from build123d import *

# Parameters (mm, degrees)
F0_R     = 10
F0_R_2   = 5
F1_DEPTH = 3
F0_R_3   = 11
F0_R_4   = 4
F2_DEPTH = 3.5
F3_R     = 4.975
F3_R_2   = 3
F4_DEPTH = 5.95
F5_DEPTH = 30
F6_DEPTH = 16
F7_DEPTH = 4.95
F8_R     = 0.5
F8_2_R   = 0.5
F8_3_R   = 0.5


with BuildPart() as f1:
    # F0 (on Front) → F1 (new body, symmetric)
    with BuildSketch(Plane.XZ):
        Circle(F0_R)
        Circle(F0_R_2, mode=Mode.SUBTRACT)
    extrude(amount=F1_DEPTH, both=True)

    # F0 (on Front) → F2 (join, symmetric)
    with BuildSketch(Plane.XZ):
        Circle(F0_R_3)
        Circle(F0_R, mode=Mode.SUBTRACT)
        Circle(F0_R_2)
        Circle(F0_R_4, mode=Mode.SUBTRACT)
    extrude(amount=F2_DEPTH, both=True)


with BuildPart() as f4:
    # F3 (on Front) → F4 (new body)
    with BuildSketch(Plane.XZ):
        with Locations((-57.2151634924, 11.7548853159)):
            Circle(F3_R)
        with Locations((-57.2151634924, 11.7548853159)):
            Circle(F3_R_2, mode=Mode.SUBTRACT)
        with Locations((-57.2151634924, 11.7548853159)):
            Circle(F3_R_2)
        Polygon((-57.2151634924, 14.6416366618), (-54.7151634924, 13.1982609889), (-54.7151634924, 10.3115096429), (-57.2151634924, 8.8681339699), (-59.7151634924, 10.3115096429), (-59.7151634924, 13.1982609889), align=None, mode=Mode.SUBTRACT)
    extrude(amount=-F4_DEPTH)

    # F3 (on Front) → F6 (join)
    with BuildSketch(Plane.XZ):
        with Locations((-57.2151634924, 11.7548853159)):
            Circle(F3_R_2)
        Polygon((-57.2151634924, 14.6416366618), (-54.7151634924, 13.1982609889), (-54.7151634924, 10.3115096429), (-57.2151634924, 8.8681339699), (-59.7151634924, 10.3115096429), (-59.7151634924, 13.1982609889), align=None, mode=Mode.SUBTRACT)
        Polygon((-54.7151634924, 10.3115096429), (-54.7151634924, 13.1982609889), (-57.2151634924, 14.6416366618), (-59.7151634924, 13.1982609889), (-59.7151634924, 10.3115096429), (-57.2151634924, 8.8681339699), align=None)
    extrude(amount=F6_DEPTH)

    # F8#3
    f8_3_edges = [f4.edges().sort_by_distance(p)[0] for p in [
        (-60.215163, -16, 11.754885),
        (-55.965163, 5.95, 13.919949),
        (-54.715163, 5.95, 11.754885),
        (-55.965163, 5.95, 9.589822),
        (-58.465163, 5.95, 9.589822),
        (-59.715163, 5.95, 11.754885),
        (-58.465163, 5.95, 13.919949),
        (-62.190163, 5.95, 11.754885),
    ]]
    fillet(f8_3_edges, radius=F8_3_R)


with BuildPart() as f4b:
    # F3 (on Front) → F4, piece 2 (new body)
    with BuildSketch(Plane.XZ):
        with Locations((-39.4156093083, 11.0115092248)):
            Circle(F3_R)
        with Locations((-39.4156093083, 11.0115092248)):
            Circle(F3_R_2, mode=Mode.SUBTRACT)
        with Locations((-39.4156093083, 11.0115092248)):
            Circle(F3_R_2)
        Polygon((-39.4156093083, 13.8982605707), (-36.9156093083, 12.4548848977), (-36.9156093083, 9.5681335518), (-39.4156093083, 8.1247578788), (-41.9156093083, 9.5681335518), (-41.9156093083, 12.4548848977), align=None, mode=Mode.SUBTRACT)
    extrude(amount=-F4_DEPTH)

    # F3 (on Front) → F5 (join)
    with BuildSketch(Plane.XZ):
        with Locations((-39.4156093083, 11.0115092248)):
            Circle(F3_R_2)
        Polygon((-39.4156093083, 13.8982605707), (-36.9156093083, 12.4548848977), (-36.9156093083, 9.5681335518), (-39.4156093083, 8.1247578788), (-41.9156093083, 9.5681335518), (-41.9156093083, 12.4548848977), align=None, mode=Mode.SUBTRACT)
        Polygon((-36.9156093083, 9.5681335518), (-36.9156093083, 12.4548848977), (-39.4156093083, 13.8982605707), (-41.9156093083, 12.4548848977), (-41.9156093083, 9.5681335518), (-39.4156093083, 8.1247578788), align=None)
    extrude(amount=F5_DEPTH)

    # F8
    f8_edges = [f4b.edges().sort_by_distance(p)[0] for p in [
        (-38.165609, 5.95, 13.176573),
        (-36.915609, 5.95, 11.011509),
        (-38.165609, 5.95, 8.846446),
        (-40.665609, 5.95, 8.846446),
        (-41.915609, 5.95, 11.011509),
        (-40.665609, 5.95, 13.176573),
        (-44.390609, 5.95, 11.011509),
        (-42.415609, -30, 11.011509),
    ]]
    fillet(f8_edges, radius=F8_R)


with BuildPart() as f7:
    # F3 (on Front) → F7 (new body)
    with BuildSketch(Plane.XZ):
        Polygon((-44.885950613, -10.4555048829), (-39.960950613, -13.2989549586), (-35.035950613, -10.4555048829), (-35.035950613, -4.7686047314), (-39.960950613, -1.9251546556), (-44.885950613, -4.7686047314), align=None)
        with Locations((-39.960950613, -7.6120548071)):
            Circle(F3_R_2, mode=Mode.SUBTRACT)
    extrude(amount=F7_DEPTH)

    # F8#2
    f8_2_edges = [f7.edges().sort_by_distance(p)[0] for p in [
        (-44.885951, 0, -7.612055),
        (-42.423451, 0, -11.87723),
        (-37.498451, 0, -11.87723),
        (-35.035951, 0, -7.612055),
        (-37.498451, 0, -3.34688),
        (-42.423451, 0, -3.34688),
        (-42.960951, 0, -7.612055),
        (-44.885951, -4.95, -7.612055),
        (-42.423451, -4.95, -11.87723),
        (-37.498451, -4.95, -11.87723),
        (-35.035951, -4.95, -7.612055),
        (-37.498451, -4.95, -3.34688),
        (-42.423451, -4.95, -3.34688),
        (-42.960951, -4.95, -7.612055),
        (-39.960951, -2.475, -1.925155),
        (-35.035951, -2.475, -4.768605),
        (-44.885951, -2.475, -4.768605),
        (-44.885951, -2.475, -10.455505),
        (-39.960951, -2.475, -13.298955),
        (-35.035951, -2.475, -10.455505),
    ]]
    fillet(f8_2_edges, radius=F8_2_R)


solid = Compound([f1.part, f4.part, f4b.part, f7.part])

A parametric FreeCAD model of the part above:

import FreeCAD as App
import Part
import Sketcher

V = App.Vector
Q = App.Units.Quantity


def edges_at(feature, points):
    """Names of the edges that pass closest to the given points."""
    edges = feature.Shape.Edges
    near = lambda p: min(range(len(edges)), key=lambda i: edges[i].distToShape(Part.Vertex(*p))[0])
    return sorted({f"Edge{near(p) + 1}" for p in points})


def add_polygon(sketch, points):
    """Adds a closed chain of lines whose ends are joined by coincident constraints."""
    first, n = sketch.GeometryCount, len(points)
    for a, b in zip(points, points[1:] + points[:1]):
        sketch.addGeometry(Part.LineSegment(App.Vector(*a, 0), App.Vector(*b, 0)), False)
    for i in range(n):
        sketch.addConstraint(Sketcher.Constraint("Coincident", first + i, 2, first + (i + 1) % n, 1))

doc = App.newDocument("Part")
body = doc.addObject("PartDesign::Body", "Body")

sketch1 = body.newObject("Sketcher::SketchObject", "Sketch")
sketch1.AttachmentSupport = (doc.getObject("XZ_Plane"), [""])
sketch1.MapMode = "FlatFace"
sketch1.addGeometry(Part.Circle(V(0, 0, 0), V(0, 0, 1), 10), False)
sketch1.addGeometry(Part.Circle(V(0, 0, 0), V(0, 0, 1), 5), False)
sketch1.addConstraint(Sketcher.Constraint("Coincident", 0, 3, -1, 1))
sketch1.addConstraint(Sketcher.Constraint("Coincident", 1, 3, -1, 1))
sketch1.addConstraint(Sketcher.Constraint("Diameter", 0, Q("20 mm")))
sketch1.addConstraint(Sketcher.Constraint("Diameter", 1, Q("10 mm")))
pad1 = body.newObject("PartDesign::Pad", "Pad")
pad1.Profile = sketch1
pad1.Length = 6
pad1.Midplane = True

sketch2 = body.newObject("Sketcher::SketchObject", "Sketch001")
sketch2.AttachmentSupport = (doc.getObject("XZ_Plane"), [""])
sketch2.MapMode = "FlatFace"
sketch2.addGeometry(Part.Circle(V(0, 0, 0), V(0, 0, 1), 11), False)
sketch2.addGeometry(Part.Circle(V(0, 0, 0), V(0, 0, 1), 10), False)
sketch2.addGeometry(Part.Circle(V(0, 0, 0), V(0, 0, 1), 5), False)
sketch2.addGeometry(Part.Circle(V(0, 0, 0), V(0, 0, 1), 4), False)
sketch2.addConstraint(Sketcher.Constraint("Coincident", 0, 3, -1, 1))
sketch2.addConstraint(Sketcher.Constraint("Coincident", 1, 3, -1, 1))
sketch2.addConstraint(Sketcher.Constraint("Coincident", 2, 3, -1, 1))
sketch2.addConstraint(Sketcher.Constraint("Coincident", 3, 3, -1, 1))
sketch2.addConstraint(Sketcher.Constraint("Diameter", 0, Q("22 mm")))
sketch2.addConstraint(Sketcher.Constraint("Diameter", 1, Q("20 mm")))
sketch2.addConstraint(Sketcher.Constraint("Diameter", 2, Q("10 mm")))
sketch2.addConstraint(Sketcher.Constraint("Diameter", 3, Q("8 mm")))
pad2 = body.newObject("PartDesign::Pad", "Pad001")
pad2.Profile = sketch2
pad2.Length = 7
pad2.Midplane = True
body2 = doc.addObject("PartDesign::Body", "Body001")

sketch3 = body2.newObject("Sketcher::SketchObject", "Sketch002")
sketch3.AttachmentSupport = (doc.getObject("XZ_Plane001"), [""])
sketch3.MapMode = "FlatFace"
sketch3.addGeometry(Part.Circle(V(-57.2, 11.8, 0), V(0, 0, 1), 5), False)
add_polygon(sketch3, [(-59.7, 13.2), (-57.2, 14.6), (-54.7, 13.2), (-54.7, 10.3), (-57.2, 8.9), (-59.7, 10.3)])
sketch3.addConstraint(Sketcher.Constraint("Vertical", 3))
sketch3.addConstraint(Sketcher.Constraint("Vertical", 6))
sketch3.addConstraint(Sketcher.Constraint("Parallel", 1, 4))
sketch3.addConstraint(Sketcher.Constraint("Parallel", 2, 5))
sketch3.addConstraint(Sketcher.Constraint("Horizontal", 3, 2, 5, 2))
sketch3.addConstraint(Sketcher.Constraint("Horizontal", 2, 2, 6, 2))
sketch3.addConstraint(Sketcher.Constraint("Vertical", 0, 3, 1, 2))
sketch3.addConstraint(Sketcher.Constraint("Vertical", 1, 2, 4, 2))
sketch3.addConstraint(Sketcher.Constraint("Diameter", 0, Q("9.95 mm")))
sketch3.addConstraint(Sketcher.Constraint("Angle", 1, Q("30 deg")))
sketch3.addConstraint(Sketcher.Constraint("DistanceX", 5, 2, 3, 2, Q("5 mm")))
sketch3.addConstraint(Sketcher.Constraint("DistanceY", 3, 2, 3, 1, Q("2.886751 mm")))
sketch3.addConstraint(Sketcher.Constraint("DistanceY", -1, 1, 2, 2, Q("13.198261 mm")))
sketch3.addConstraint(Sketcher.Constraint("DistanceY", 0, 3, 1, 2, Q("2.886751 mm")))
sketch3.addConstraint(Sketcher.Constraint("DistanceX", 0, 3, -1, 1, Q("57.215163 mm")))
pad3 = body2.newObject("PartDesign::Pad", "Pad002")
pad3.Profile = sketch3
pad3.Length = 5.95
pad3.Reversed = True

sketch4 = body2.newObject("Sketcher::SketchObject", "Sketch003")
sketch4.AttachmentSupport = (doc.getObject("XZ_Plane001"), [""])
sketch4.MapMode = "FlatFace"
sketch4.addGeometry(Part.Circle(V(-57.2, 11.8, 0), V(0, 0, 1), 3), False)
sketch4.addConstraint(Sketcher.Constraint("Diameter", 0, Q("6 mm")))
sketch4.addConstraint(Sketcher.Constraint("DistanceX", 0, 3, -1, 1, Q("57.215163 mm")))
sketch4.addConstraint(Sketcher.Constraint("DistanceY", -1, 1, 0, 3, Q("11.754885 mm")))
pad4 = body2.newObject("PartDesign::Pad", "Pad003")
pad4.Profile = sketch4
pad4.Length = 16
doc.recompute()

fillet = body2.newObject("PartDesign::Fillet", "Fillet")
fillet.Base = (pad4, edges_at(pad4, [
    (-60.215, -16, 11.755),
    (-55.965, 5.95, 13.92),
    (-54.715, 5.95, 11.755),
    (-55.965, 5.95, 9.59),
    (-58.465, 5.95, 9.59),
    (-59.715, 5.95, 11.755),
    (-58.465, 5.95, 13.92),
    (-62.19, 5.95, 11.755),
]))
fillet.Radius = 0.5
body3 = doc.addObject("PartDesign::Body", "Body002")

sketch5 = body3.newObject("Sketcher::SketchObject", "Sketch004")
sketch5.AttachmentSupport = (doc.getObject("XZ_Plane002"), [""])
sketch5.MapMode = "FlatFace"
sketch5.addGeometry(Part.Circle(V(-39.4, 11, 0), V(0, 0, 1), 5), False)
add_polygon(sketch5, [(-41.9, 12.5), (-39.4, 13.9), (-36.9, 12.5), (-36.9, 9.6), (-39.4, 8.1), (-41.9, 9.6)])
sketch5.addConstraint(Sketcher.Constraint("Vertical", 3))
sketch5.addConstraint(Sketcher.Constraint("Vertical", 6))
sketch5.addConstraint(Sketcher.Constraint("Parallel", 1, 4))
sketch5.addConstraint(Sketcher.Constraint("Parallel", 2, 5))
sketch5.addConstraint(Sketcher.Constraint("Horizontal", 3, 2, 5, 2))
sketch5.addConstraint(Sketcher.Constraint("Horizontal", 2, 2, 6, 2))
sketch5.addConstraint(Sketcher.Constraint("Vertical", 0, 3, 1, 2))
sketch5.addConstraint(Sketcher.Constraint("Vertical", 1, 2, 4, 2))
sketch5.addConstraint(Sketcher.Constraint("Diameter", 0, Q("9.95 mm")))
sketch5.addConstraint(Sketcher.Constraint("Angle", 1, Q("30 deg")))
sketch5.addConstraint(Sketcher.Constraint("DistanceX", 5, 2, 3, 2, Q("5 mm")))
sketch5.addConstraint(Sketcher.Constraint("DistanceY", 3, 2, 3, 1, Q("2.886751 mm")))
sketch5.addConstraint(Sketcher.Constraint("DistanceX", 0, 3, -1, 1, Q("39.415609 mm")))
sketch5.addConstraint(Sketcher.Constraint("DistanceY", -1, 1, 0, 3, Q("11.011509 mm")))
sketch5.addConstraint(Sketcher.Constraint("DistanceY", -1, 1, 1, 2, Q("13.898261 mm")))
pad5 = body3.newObject("PartDesign::Pad", "Pad004")
pad5.Profile = sketch5
pad5.Length = 5.95
pad5.Reversed = True

sketch6 = body3.newObject("Sketcher::SketchObject", "Sketch005")
sketch6.AttachmentSupport = (doc.getObject("XZ_Plane002"), [""])
sketch6.MapMode = "FlatFace"
sketch6.addGeometry(Part.Circle(V(-39.4, 11, 0), V(0, 0, 1), 3), False)
sketch6.addConstraint(Sketcher.Constraint("Diameter", 0, Q("6 mm")))
sketch6.addConstraint(Sketcher.Constraint("DistanceX", 0, 3, -1, 1, Q("39.415609 mm")))
sketch6.addConstraint(Sketcher.Constraint("DistanceY", -1, 1, 0, 3, Q("11.011509 mm")))
pad6 = body3.newObject("PartDesign::Pad", "Pad005")
pad6.Profile = sketch6
pad6.Length = 30
doc.recompute()

fillet2 = body3.newObject("PartDesign::Fillet", "Fillet001")
fillet2.Base = (pad6, edges_at(pad6, [
    (-38.166, 5.95, 13.177),
    (-36.916, 5.95, 11.012),
    (-38.166, 5.95, 8.846),
    (-40.666, 5.95, 8.846),
    (-41.916, 5.95, 11.012),
    (-40.666, 5.95, 13.177),
    (-44.391, 5.95, 11.012),
    (-42.416, -30, 11.012),
]))
fillet2.Radius = 0.5
body4 = doc.addObject("PartDesign::Body", "Body003")

sketch7 = body4.newObject("Sketcher::SketchObject", "Sketch006")
sketch7.AttachmentSupport = (doc.getObject("XZ_Plane003"), [""])
sketch7.MapMode = "FlatFace"
add_polygon(sketch7, [(-44.9, -10.5), (-40, -13.3), (-35, -10.5), (-35, -4.8), (-40, -1.9), (-44.9, -4.8)])
sketch7.addGeometry(Part.Circle(V(-40, -7.6, 0), V(0, 0, 1), 3), False)
sketch7.addConstraint(Sketcher.Constraint("Vertical", 2))
sketch7.addConstraint(Sketcher.Constraint("Vertical", 5))
sketch7.addConstraint(Sketcher.Constraint("Parallel", 0, 3))
sketch7.addConstraint(Sketcher.Constraint("Parallel", 1, 4))
sketch7.addConstraint(Sketcher.Constraint("Horizontal", 2, 2, 4, 2))
sketch7.addConstraint(Sketcher.Constraint("Horizontal", 1, 2, 5, 2))
sketch7.addConstraint(Sketcher.Constraint("Vertical", 6, 3, 0, 2))
sketch7.addConstraint(Sketcher.Constraint("Vertical", 0, 2, 3, 2))
sketch7.addConstraint(Sketcher.Constraint("Diameter", 6, Q("6 mm")))
sketch7.addConstraint(Sketcher.Constraint("Angle", 0, Q("-30 deg")))
sketch7.addConstraint(Sketcher.Constraint("DistanceX", 4, 2, 2, 2, Q("9.85 mm")))
sketch7.addConstraint(Sketcher.Constraint("DistanceY", 2, 1, 2, 2, Q("5.6869 mm")))
sketch7.addConstraint(Sketcher.Constraint("DistanceY", 0, 2, 6, 3, Q("5.6869 mm")))
sketch7.addConstraint(Sketcher.Constraint("DistanceX", 6, 3, -1, 1, Q("39.960951 mm")))
sketch7.addConstraint(Sketcher.Constraint("DistanceY", 6, 3, -1, 1, Q("7.612055 mm")))
pad7 = body4.newObject("PartDesign::Pad", "Pad006")
pad7.Profile = sketch7
pad7.Length = 4.95
doc.recompute()

fillet3 = body4.newObject("PartDesign::Fillet", "Fillet002")
fillet3.Base = (pad7, ["Edge1"])
fillet3.UseAllEdges = True
fillet3.Radius = 0.5

doc.recompute()
